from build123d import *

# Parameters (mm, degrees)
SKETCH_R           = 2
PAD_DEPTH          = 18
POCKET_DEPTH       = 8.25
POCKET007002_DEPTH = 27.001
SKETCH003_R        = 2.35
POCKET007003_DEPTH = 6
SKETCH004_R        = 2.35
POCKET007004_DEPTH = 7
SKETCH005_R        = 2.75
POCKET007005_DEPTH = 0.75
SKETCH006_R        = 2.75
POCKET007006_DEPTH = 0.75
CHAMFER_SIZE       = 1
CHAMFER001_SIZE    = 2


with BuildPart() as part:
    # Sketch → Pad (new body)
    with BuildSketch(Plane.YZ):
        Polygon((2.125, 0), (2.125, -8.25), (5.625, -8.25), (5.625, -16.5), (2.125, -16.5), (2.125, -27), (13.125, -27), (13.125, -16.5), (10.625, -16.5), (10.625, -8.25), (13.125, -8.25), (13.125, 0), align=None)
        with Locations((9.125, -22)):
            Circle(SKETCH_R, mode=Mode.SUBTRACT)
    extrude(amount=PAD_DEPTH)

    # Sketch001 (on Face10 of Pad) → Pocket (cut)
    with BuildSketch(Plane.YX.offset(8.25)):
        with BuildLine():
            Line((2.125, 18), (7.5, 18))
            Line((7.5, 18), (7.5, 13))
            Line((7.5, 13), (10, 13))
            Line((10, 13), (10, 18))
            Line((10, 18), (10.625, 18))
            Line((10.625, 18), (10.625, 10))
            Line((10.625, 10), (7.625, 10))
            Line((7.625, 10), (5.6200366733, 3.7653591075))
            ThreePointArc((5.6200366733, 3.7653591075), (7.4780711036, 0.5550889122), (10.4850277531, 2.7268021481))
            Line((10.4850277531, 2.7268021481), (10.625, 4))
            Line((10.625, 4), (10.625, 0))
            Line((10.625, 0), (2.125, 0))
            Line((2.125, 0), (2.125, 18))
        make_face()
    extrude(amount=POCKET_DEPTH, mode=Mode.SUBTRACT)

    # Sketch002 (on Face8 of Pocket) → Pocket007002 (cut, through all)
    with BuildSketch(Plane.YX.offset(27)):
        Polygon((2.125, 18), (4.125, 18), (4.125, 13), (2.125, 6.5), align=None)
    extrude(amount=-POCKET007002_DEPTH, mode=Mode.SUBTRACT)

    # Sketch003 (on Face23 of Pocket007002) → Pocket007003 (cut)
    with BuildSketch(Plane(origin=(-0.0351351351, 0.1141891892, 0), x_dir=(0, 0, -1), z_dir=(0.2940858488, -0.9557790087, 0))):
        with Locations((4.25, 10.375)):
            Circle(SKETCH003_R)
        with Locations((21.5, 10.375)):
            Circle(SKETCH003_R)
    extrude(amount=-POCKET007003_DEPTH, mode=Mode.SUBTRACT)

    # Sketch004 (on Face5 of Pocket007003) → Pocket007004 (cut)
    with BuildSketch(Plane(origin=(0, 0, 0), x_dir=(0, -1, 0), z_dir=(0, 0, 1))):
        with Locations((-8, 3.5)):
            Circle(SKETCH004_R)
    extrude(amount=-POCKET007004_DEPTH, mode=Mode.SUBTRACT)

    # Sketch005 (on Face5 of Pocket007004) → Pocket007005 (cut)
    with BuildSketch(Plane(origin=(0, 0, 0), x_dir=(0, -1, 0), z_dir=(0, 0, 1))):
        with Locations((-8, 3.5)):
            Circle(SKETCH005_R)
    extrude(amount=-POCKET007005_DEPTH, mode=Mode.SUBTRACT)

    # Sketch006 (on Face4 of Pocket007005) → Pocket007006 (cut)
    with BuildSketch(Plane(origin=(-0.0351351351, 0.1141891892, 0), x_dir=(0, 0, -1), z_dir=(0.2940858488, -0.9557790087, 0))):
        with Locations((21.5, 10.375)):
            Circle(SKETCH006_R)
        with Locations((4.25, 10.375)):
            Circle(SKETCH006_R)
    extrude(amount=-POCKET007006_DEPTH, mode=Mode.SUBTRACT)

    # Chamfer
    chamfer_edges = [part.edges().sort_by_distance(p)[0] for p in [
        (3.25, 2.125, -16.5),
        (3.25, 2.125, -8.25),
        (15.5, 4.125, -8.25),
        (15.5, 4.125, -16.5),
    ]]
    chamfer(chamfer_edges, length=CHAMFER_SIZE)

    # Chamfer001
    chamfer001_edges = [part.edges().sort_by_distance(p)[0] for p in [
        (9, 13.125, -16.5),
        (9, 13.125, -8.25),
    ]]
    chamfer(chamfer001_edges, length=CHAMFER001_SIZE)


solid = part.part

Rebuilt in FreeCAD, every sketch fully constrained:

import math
import FreeCAD as App
import Part
import Sketcher
from FreeCAD import Vector


def edges_at(feature, points):
    """Names of the edges that pass closest to the given points."""
    edges = feature.Shape.Edges
    near = lambda p: min(range(len(edges)), key=lambda i: edges[i].distToShape(Part.Vertex(*p))[0])
    return sorted({f"Edge{near(p) + 1}" for p in points})

doc = App.newDocument("Part")
params = doc.addObject("Spreadsheet::Sheet", "Params")
for row, (alias, value) in enumerate([
    ("sketch1_diameter", "4 mm"),
    ("sketch1_width", "11 mm"),
    ("sketch1_width2", "3.5 mm"),
    ("sketch1_width3", "2.5 mm"),
    ("sketch1_height", "10.5 mm"),
    ("pad1_length", "18 mm"),
    ("sketch2_radius", "2.5 mm"),
    ("sketch2_width", "18 mm"),
    ("sketch2_width2", "4 mm"),
    ("sketch2_width3", "8 mm"),
    ("sketch2_width4", "5 mm"),
    ("pocket1_length", "8.25 mm"),
    ("sketch3_width", "5 mm"),
    ("sketch3_height", "2 mm"),
    ("sketch3_width2", "11.5 mm"),
    ("sketch4_diameter", "4.7 mm"),
    ("pocket3_length", "6 mm"),
    ("sketch5_diameter", "4.7 mm"),
    ("pocket4_length", "7 mm"),
    ("sketch6_diameter", "5.5 mm"),
    ("pocket5_length", "0.75 mm"),
    ("sketch7_diameter", "5.5 mm"),
    ("pocket6_length", "0.75 mm"),
    ("chamfer_size", "1 mm"),
    ("chamfer2_size", "2 mm"),
], start=1):
    params.set(f"A{row}", alias)
    params.set(f"B{row}", "=" + value)
    params.setAlias(f"B{row}", alias)

body = doc.addObject("PartDesign::Body", "Body")

# Sketch on YZ plane
sketch1 = doc.addObject("Sketcher::SketchObject", "Sketch")
body.addObject(sketch1)
sketch1.AttachmentSupport = (doc.YZ_Plane, [""])
sketch1.MapMode = "FlatFace"
sketch1.addGeometry(Part.LineSegment(Vector(2.1, 0, 0), Vector(2.1, -8.2, 0)), False)
sketch1.addGeometry(Part.LineSegment(Vector(2.1, -8.2, 0), Vector(5.6, -8.2, 0)), False)
sketch1.addGeometry(Part.LineSegment(Vector(5.6, -8.2, 0), Vector(5.6, -16.5, 0)), False)
sketch1.addGeometry(Part.LineSegment(Vector(5.6, -16.5, 0), Vector(2.1, -16.5, 0)), False)
sketch1.addGeometry(Part.LineSegment(Vector(2.1, -16.5, 0), Vector(2.1, -27, 0)), False)
sketch1.addGeometry(Part.LineSegment(Vector(2.1, -27, 0), Vector(13.1, -27, 0)), False)
sketch1.addGeometry(Part.LineSegment(Vector(13.1, -27, 0), Vector(13.1, -16.5, 0)), False)
sketch1.addGeometry(Part.LineSegment(Vector(13.1, -16.5, 0), Vector(10.6, -16.5, 0)), False)
sketch1.addGeometry(Part.LineSegment(Vector(10.6, -16.5, 0), Vector(10.6, -8.2, 0)), False)
sketch1.addGeometry(Part.LineSegment(Vector(10.6, -8.2, 0), Vector(13.1, -8.2, 0)), False)
sketch1.addGeometry(Part.LineSegment(Vector(13.1, -8.2, 0), Vector(13.1, 0, 0)), False)
sketch1.addGeometry(Part.LineSegment(Vector(13.1, 0, 0), Vector(2.1, 0, 0)), False)
sketch1.addGeometry(Part.Circle(Vector(9.1, -22, 0), Vector(0, 0, 1), 2), False)
sketch1.addConstraint(Sketcher.Constraint("Coincident", 0, 2, 1, 1))
sketch1.addConstraint(Sketcher.Constraint("Coincident", 1, 2, 2, 1))
sketch1.addConstraint(Sketcher.Constraint("Coincident", 2, 2, 3, 1))
sketch1.addConstraint(Sketcher.Constraint("Coincident", 3, 2, 4, 1))
sketch1.addConstraint(Sketcher.Constraint("Coincident", 4, 2, 5, 1))
sketch1.addConstraint(Sketcher.Constraint("Coincident", 5, 2, 6, 1))
sketch1.addConstraint(Sketcher.Constraint("Coincident", 6, 2, 7, 1))
sketch1.addConstraint(Sketcher.Constraint("Coincident", 7, 2, 8, 1))
sketch1.addConstraint(Sketcher.Constraint("Coincident", 8, 2, 9, 1))
sketch1.addConstraint(Sketcher.Constraint("Coincident", 9, 2, 10, 1))
sketch1.addConstraint(Sketcher.Constraint("Coincident", 10, 2, 11, 1))
sketch1.addConstraint(Sketcher.Constraint("Coincident", 11, 2, 0, 1))
sketch1.addConstraint(Sketcher.Constraint("Vertical", 0))
sketch1.addConstraint(Sketcher.Constraint("Horizontal", 1))
sketch1.addConstraint(Sketcher.Constraint("Vertical", 2))
sketch1.addConstraint(Sketcher.Constraint("Horizontal", 3))
sketch1.addConstraint(Sketcher.Constraint("Vertical", 4))
sketch1.addConstraint(Sketcher.Constraint("Horizontal", 5))
sketch1.addConstraint(Sketcher.Constraint("Vertical", 6))
sketch1.addConstraint(Sketcher.Constraint("Horizontal", 7))
sketch1.addConstraint(Sketcher.Constraint("Vertical", 8))
sketch1.addConstraint(Sketcher.Constraint("Horizontal", 9))
sketch1.addConstraint(Sketcher.Constraint("Vertical", 10))
sketch1.addConstraint(Sketcher.Constraint("Horizontal", 11))
sketch1.addConstraint(Sketcher.Constraint("PointOnObject", 10, 2, -1))
sketch1.addConstraint(Sketcher.Constraint("Horizontal", 3, 2, 6, 2))
sketch1.addConstraint(Sketcher.Constraint("Horizontal", 1, 2, 8, 2))
sketch1.addConstraint(Sketcher.Constraint("Vertical", 0, 2, 3, 2))
sketch1.addConstraint(Sketcher.Constraint("Vertical", 6, 2, 9, 2))
sketch1.addConstraint(Sketcher.Constraint("Equal", 0, 2))
sketch1.addConstraint(Sketcher.Constraint("Diameter", 12, 4.0))
sketch1.addConstraint(Sketcher.Constraint("DistanceX", 5, 1, 5, 2, 11.0))
sketch1.addConstraint(Sketcher.Constraint("DistanceX", 1, 1, 1, 2, 3.5))
sketch1.addConstraint(Sketcher.Constraint("DistanceX", 7, 2, 7, 1, 2.5))
sketch1.addConstraint(Sketcher.Constraint("DistanceY", 4, 2, 4, 1, 10.5))
sketch1.addConstraint(Sketcher.Constraint("DistanceY", 12, 3, -1, 1, 22.0))
sketch1.addConstraint(Sketcher.Constraint("DistanceY", 4, 2, -1, 1, 27.0))
sketch1.addConstraint(Sketcher.Constraint("DistanceX", 0, 2, 12, 3, 7.0))
sketch1.addConstraint(Sketcher.Constraint("DistanceX", -1, 1, 12, 3, 9.125))
sketch1.setExpression("Constraints[30]", "Params.sketch1_diameter")
sketch1.setExpression("Constraints[31]", "Params.sketch1_width")
sketch1.setExpression("Constraints[32]", "Params.sketch1_width2")
sketch1.setExpression("Constraints[33]", "Params.sketch1_width3")
sketch1.setExpression("Constraints[34]", "Params.sketch1_height")
pad1 = doc.addObject("PartDesign::Pad", "Pad")
body.addObject(pad1)
pad1.Profile = sketch1
pad1.setExpression("Length", "Params.pad1_length")

# Sketch on XY plane
sketch2 = doc.addObject("Sketcher::SketchObject", "Sketch001")
body.addObject(sketch2)
sketch2.AttachmentSupport = (doc.XY_Plane, [""])
sketch2.MapMode = "FlatFace"
sketch2.AttachmentOffset = App.Placement(Vector(0, 0, -8.25), App.Rotation())
sketch2.addGeometry(Part.LineSegment(Vector(18, 7.5, 0), Vector(18, 2.1, 0)), False)
sketch2.addGeometry(Part.LineSegment(Vector(18, 2.1, 0), Vector(0, 2.1, 0)), False)
sketch2.addGeometry(Part.LineSegment(Vector(0, 2.1, 0), Vector(0, 10.6, 0)), False)
sketch2.addGeometry(Part.LineSegment(Vector(0, 10.6, 0), Vector(4, 10.6, 0)), False)
sketch2.addGeometry(Part.LineSegment(Vector(4, 10.6, 0), Vector(2.7, 10.5, 0)), False)
sketch2.addGeometry(Part.ArcOfCircle(Part.Circle(Vector(3, 8, 0), Vector(0, 0, 1), 2.5), math.radians(96), math.radians(288)), False)
sketch2.addGeometry(Part.LineSegment(Vector(3.8, 5.6, 0), Vector(10, 7.6, 0)), False)
sketch2.addGeometry(Part.LineSegment(Vector(10, 7.6, 0), Vector(10, 10.6, 0)), False)
sketch2.addGeometry(Part.LineSegment(Vector(10, 10.6, 0), Vector(18, 10.6, 0)), False)
sketch2.addGeometry(Part.LineSegment(Vector(18, 10.6, 0), Vector(18, 10, 0)), False)
sketch2.addGeometry(Part.LineSegment(Vector(18, 10, 0), Vector(13, 10, 0)), False)
sketch2.addGeometry(Part.LineSegment(Vector(13, 10, 0), Vector(13, 7.5, 0)), False)
sketch2.addGeometry(Part.LineSegment(Vector(13, 7.5, 0), Vector(18, 7.5, 0)), False)
sketch2.addConstraint(Sketcher.Constraint("Coincident", 0, 2, 1, 1))
sketch2.addConstraint(Sketcher.Constraint("Coincident", 1, 2, 2, 1))
sketch2.addConstraint(Sketcher.Constraint("Coincident", 2, 2, 3, 1))
sketch2.addConstraint(Sketcher.Constraint("Coincident", 3, 2, 4, 1))
sketch2.addConstraint(Sketcher.Constraint("Tangent", 4, 2, 5, 1))
sketch2.addConstraint(Sketcher.Constraint("Tangent", 5, 2, 6, 1))
sketch2.addConstraint(Sketcher.Constraint("Coincident", 6, 2, 7, 1))
sketch2.addConstraint(Sketcher.Constraint("Coincident", 7, 2, 8, 1))
sketch2.addConstraint(Sketcher.Constraint("Coincident", 8, 2, 9, 1))
sketch2.addConstraint(Sketcher.Constraint("Coincident", 9, 2, 10, 1))
sketch2.addConstraint(Sketcher.Constraint("Coincident", 10, 2, 11, 1))
sketch2.addConstraint(Sketcher.Constraint("Coincident", 11, 2, 12, 1))
sketch2.addConstraint(Sketcher.Constraint("Coincident", 12, 2, 0, 1))
sketch2.addConstraint(Sketcher.Constraint("Vertical", 0))
sketch2.addConstraint(Sketcher.Constraint("Horizontal", 1))
sketch2.addConstraint(Sketcher.Constraint("Vertical", 2))
sketch2.addConstraint(Sketcher.Constraint("Horizontal", 3))
sketch2.addConstraint(Sketcher.Constraint("Vertical", 7))
sketch2.addConstraint(Sketcher.Constraint("Horizontal", 8))
sketch2.addConstraint(Sketcher.Constraint("Vertical", 9))
sketch2.addConstraint(Sketcher.Constraint("Horizontal", 10))
sketch2.addConstraint(Sketcher.Constraint("Vertical", 11))
sketch2.addConstraint(Sketcher.Constraint("Horizontal", 12))
sketch2.addConstraint(Sketcher.Constraint("PointOnObject", 1, 2, -2))
sketch2.addConstraint(Sketcher.Constraint("Horizontal", 3, 2, 7, 2))
sketch2.addConstraint(Sketcher.Constraint("Vertical", 0, 2, 8, 2))
sketch2.addConstraint(Sketcher.Constraint("Radius", 5, 2.5))
sketch2.addConstraint(Sketcher.Constraint("DistanceX", 1, 2, 1, 1, 18.0))
sketch2.addConstraint(Sketcher.Constraint("DistanceX", 3, 1, 3, 2, 4.0))
sketch2.addConstraint(Sketcher.Constraint("DistanceX", 8, 1, 8, 2, 8.0))
sketch2.addConstraint(Sketcher.Constraint("DistanceX", 10, 2, 10, 1, 5.0))
sketch2.addConstraint(Sketcher.Constraint("DistanceY", 7, 1, 7, 2, 3.0))
sketch2.addConstraint(Sketcher.Constraint("DistanceY", 2, 1, 2, 2, 8.5))
sketch2.addConstraint(Sketcher.Constraint("DistanceY", 11, 2, 11, 1, 2.5))
sketch2.addConstraint(Sketcher.Constraint("DistanceX", -1, 1, 5, 3, 3.0))
sketch2.addConstraint(Sketcher.Constraint("DistanceY", -1, 1, 5, 3, 8.0))
sketch2.addConstraint(Sketcher.Constraint("DistanceY", -1, 1, 9, 2, 10.0))
sketch2.addConstraint(Sketcher.Constraint("DistanceY", 0, 2, 0, 1, 5.375))
sketch2.setExpression("Constraints[26]", "Params.sketch2_radius")
sketch2.setExpression("Constraints[27]", "Params.sketch2_width")
sketch2.setExpression("Constraints[28]", "Params.sketch2_width2")
sketch2.setExpression("Constraints[29]", "Params.sketch2_width3")
sketch2.setExpression("Constraints[30]", "Params.sketch2_width4")
pocket1 = doc.addObject("PartDesign::Pocket", "Pocket")
body.addObject(pocket1)
pocket1.Profile = sketch2
pocket1.setExpression("Length", "Params.pocket1_length")

# Sketch on XY plane
sketch3 = doc.addObject("Sketcher::SketchObject", "Sketch002")
body.addObject(sketch3)
sketch3.AttachmentSupport = (doc.XY_Plane, [""])
sketch3.MapMode = "FlatFace"
sketch3.AttachmentOffset = App.Placement(Vector(0, 0, -27), App.Rotation())
sketch3.addGeometry(Part.LineSegment(Vector(18, 4.1, 0), Vector(18, 2.1, 0)), False)
sketch3.addGeometry(Part.LineSegment(Vector(18, 2.1, 0), Vector(6.5, 2.1, 0)), False)
sketch3.addGeometry(Part.LineSegment(Vector(6.5, 2.1, 0), Vector(13, 4.1, 0)), False)
sketch3.addGeometry(Part.LineSegment(Vector(13, 4.1, 0), Vector(18, 4.1, 0)), False)
sketch3.addConstraint(Sketcher.Constraint("Coincident", 0, 2, 1, 1))
sketch3.addConstraint(Sketcher.Constraint("Coincident", 1, 2, 2, 1))
sketch3.addConstraint(Sketcher.Constraint("Coincident", 2, 2, 3, 1))
sketch3.addConstraint(Sketcher.Constraint("Coincident", 3, 2, 0, 1))
sketch3.addConstraint(Sketcher.Constraint("Vertical", 0))
sketch3.addConstraint(Sketcher.Constraint("Horizontal", 1))
sketch3.addConstraint(Sketcher.Constraint("Horizontal", 3))
sketch3.addConstraint(Sketcher.Constraint("DistanceX", 3, 1, 3, 2, 5.0))
sketch3.addConstraint(Sketcher.Constraint("DistanceY", 0, 2, 0, 1, 2.0))
sketch3.addConstraint(Sketcher.Constraint("DistanceX", 1, 2, 1, 1, 11.5))
sketch3.addConstraint(Sketcher.Constraint("DistanceX", -1, 1, 0, 2, 18.0))
sketch3.addConstraint(Sketcher.Constraint("DistanceY", -1, 1, 0, 2, 2.125))
sketch3.setExpression("Constraints[7]", "Params.sketch3_width")
sketch3.setExpression("Constraints[8]", "Params.sketch3_height")
sketch3.setExpression("Constraints[9]", "Params.sketch3_width2")
pocket2 = doc.addObject("PartDesign::Pocket", "Pocket001")
body.addObject(pocket2)
pocket2.Profile = sketch3
pocket2.Type = "ThroughAll"
pocket2.Reversed = True

# Sketch on an angled plane
sketch4 = doc.addObject("Sketcher::SketchObject", "Sketch003")
body.addObject(sketch4)
sketch4.Placement = App.Placement(Vector(-0.035135, 0.114189, 0), App.Rotation(Vector(0, 0, -1), Vector(0.955779009, 0.294085849, 0), Vector(0.294085849, -0.955779009, 0), "ZXY"))
sketch4.addGeometry(Part.Circle(Vector(4.2, 10.4, 0), Vector(0, 0, 1), 2.4), False)
sketch4.addGeometry(Part.Circle(Vector(21.5, 10.4, 0), Vector(0, 0, 1), 2.4), False)
sketch4.addConstraint(Sketcher.Constraint("Equal", 0, 1))
sketch4.addConstraint(Sketcher.Constraint("Horizontal", 0, 3, 1, 3))
sketch4.addConstraint(Sketcher.Constraint("Diameter", 0, 4.7))
sketch4.addConstraint(Sketcher.Constraint("DistanceX", -1, 1, 1, 3, 21.5))
sketch4.addConstraint(Sketcher.Constraint("DistanceX", -1, 1, 0, 3, 4.25))
sketch4.addConstraint(Sketcher.Constraint("DistanceY", -1, 1, 0, 3, 10.375))
sketch4.setExpression("Constraints[2]", "Params.sketch4_diameter")
pocket3 = doc.addObject("PartDesign::Pocket", "Pocket002")
body.addObject(pocket3)
pocket3.Profile = sketch4
pocket3.setExpression("Length", "Params.pocket3_length")

# Sketch on XY plane
sketch5 = doc.addObject("Sketcher::SketchObject", "Sketch004")
body.addObject(sketch5)
sketch5.AttachmentSupport = (doc.XY_Plane, [""])
sketch5.MapMode = "FlatFace"
sketch5.addGeometry(Part.Circle(Vector(3.5, 8, 0), Vector(0, 0, 1), 2.4), False)
sketch5.addConstraint(Sketcher.Constraint("Diameter", 0, 4.7))
sketch5.addConstraint(Sketcher.Constraint("DistanceY", -1, 1, 0, 3, 8.0))
sketch5.addConstraint(Sketcher.Constraint("DistanceX", -1, 1, 0, 3, 3.5))
sketch5.setExpression("Constraints[0]", "Params.sketch5_diameter")
pocket4 = doc.addObject("PartDesign::Pocket", "Pocket003")
body.addObject(pocket4)
pocket4.Profile = sketch5
pocket4.setExpression("Length", "Params.pocket4_length")

# Sketch on XY plane
sketch6 = doc.addObject("Sketcher::SketchObject", "Sketch005")
body.addObject(sketch6)
sketch6.AttachmentSupport = (doc.XY_Plane, [""])
sketch6.MapMode = "FlatFace"
sketch6.addGeometry(Part.Circle(Vector(3.5, 8, 0), Vector(0, 0, 1), 2.8), False)
sketch6.addConstraint(Sketcher.Constraint("Diameter", 0, 5.5))
sketch6.addConstraint(Sketcher.Constraint("DistanceY", -1, 1, 0, 3, 8.0))
sketch6.addConstraint(Sketcher.Constraint("DistanceX", -1, 1, 0, 3, 3.5))
sketch6.setExpression("Constraints[0]", "Params.sketch6_diameter")
pocket5 = doc.addObject("PartDesign::Pocket", "Pocket004")
body.addObject(pocket5)
pocket5.Profile = sketch6
pocket5.setExpression("Length", "Params.pocket5_length")

# Sketch on an angled plane
sketch7 = doc.addObject("Sketcher::SketchObject", "Sketch006")
body.addObject(sketch7)
sketch7.Placement = App.Placement(Vector(-0.035135, 0.114189, 0), App.Rotation(Vector(0, 0, -1), Vector(0.955779009, 0.294085849, 0), Vector(0.294085849, -0.955779009, 0), "ZXY"))
sketch7.addGeometry(Part.Circle(Vector(21.5, 10.4, 0), Vector(0, 0, 1), 2.8), False)
sketch7.addGeometry(Part.Circle(Vector(4.2, 10.4, 0), Vector(0, 0, 1), 2.8), False)
sketch7.addConstraint(Sketcher.Constraint("Equal", 0, 1))
sketch7.addConstraint(Sketcher.Constraint("Horizontal", 0, 3, 1, 3))
sketch7.addConstraint(Sketcher.Constraint("Diameter", 0, 5.5))
sketch7.addConstraint(Sketcher.Constraint("DistanceX", -1, 1, 0, 3, 21.5))
sketch7.addConstraint(Sketcher.Constraint("DistanceX", -1, 1, 1, 3, 4.25))
sketch7.addConstraint(Sketcher.Constraint("DistanceY", -1, 1, 0, 3, 10.375))
sketch7.setExpression("Constraints[2]", "Params.sketch7_diameter")
pocket6 = doc.addObject("PartDesign::Pocket", "Pocket005")
body.addObject(pocket6)
pocket6.Profile = sketch7
pocket6.setExpression("Length", "Params.pocket6_length")
doc.recompute()

chamfer = doc.addObject("PartDesign::Chamfer", "Chamfer")
body.addObject(chamfer)
chamfer.Base = (pocket6, edges_at(pocket6, [
    (3.25, 2.125, -16.5),
    (3.25, 2.125, -8.25),
    (15.5, 4.125, -8.25),
    (15.5, 4.125, -16.5),
]))
chamfer.setExpression("Size", "Params.chamfer_size")
doc.recompute()

chamfer2 = doc.addObject("PartDesign::Chamfer", "Chamfer001")
body.addObject(chamfer2)
chamfer2.Base = (chamfer, edges_at(chamfer, [(9, 13.125, -16.5), (9, 13.125, -8.25)]))
chamfer2.setExpression("Size", "Params.chamfer2_size")

doc.recompute()
